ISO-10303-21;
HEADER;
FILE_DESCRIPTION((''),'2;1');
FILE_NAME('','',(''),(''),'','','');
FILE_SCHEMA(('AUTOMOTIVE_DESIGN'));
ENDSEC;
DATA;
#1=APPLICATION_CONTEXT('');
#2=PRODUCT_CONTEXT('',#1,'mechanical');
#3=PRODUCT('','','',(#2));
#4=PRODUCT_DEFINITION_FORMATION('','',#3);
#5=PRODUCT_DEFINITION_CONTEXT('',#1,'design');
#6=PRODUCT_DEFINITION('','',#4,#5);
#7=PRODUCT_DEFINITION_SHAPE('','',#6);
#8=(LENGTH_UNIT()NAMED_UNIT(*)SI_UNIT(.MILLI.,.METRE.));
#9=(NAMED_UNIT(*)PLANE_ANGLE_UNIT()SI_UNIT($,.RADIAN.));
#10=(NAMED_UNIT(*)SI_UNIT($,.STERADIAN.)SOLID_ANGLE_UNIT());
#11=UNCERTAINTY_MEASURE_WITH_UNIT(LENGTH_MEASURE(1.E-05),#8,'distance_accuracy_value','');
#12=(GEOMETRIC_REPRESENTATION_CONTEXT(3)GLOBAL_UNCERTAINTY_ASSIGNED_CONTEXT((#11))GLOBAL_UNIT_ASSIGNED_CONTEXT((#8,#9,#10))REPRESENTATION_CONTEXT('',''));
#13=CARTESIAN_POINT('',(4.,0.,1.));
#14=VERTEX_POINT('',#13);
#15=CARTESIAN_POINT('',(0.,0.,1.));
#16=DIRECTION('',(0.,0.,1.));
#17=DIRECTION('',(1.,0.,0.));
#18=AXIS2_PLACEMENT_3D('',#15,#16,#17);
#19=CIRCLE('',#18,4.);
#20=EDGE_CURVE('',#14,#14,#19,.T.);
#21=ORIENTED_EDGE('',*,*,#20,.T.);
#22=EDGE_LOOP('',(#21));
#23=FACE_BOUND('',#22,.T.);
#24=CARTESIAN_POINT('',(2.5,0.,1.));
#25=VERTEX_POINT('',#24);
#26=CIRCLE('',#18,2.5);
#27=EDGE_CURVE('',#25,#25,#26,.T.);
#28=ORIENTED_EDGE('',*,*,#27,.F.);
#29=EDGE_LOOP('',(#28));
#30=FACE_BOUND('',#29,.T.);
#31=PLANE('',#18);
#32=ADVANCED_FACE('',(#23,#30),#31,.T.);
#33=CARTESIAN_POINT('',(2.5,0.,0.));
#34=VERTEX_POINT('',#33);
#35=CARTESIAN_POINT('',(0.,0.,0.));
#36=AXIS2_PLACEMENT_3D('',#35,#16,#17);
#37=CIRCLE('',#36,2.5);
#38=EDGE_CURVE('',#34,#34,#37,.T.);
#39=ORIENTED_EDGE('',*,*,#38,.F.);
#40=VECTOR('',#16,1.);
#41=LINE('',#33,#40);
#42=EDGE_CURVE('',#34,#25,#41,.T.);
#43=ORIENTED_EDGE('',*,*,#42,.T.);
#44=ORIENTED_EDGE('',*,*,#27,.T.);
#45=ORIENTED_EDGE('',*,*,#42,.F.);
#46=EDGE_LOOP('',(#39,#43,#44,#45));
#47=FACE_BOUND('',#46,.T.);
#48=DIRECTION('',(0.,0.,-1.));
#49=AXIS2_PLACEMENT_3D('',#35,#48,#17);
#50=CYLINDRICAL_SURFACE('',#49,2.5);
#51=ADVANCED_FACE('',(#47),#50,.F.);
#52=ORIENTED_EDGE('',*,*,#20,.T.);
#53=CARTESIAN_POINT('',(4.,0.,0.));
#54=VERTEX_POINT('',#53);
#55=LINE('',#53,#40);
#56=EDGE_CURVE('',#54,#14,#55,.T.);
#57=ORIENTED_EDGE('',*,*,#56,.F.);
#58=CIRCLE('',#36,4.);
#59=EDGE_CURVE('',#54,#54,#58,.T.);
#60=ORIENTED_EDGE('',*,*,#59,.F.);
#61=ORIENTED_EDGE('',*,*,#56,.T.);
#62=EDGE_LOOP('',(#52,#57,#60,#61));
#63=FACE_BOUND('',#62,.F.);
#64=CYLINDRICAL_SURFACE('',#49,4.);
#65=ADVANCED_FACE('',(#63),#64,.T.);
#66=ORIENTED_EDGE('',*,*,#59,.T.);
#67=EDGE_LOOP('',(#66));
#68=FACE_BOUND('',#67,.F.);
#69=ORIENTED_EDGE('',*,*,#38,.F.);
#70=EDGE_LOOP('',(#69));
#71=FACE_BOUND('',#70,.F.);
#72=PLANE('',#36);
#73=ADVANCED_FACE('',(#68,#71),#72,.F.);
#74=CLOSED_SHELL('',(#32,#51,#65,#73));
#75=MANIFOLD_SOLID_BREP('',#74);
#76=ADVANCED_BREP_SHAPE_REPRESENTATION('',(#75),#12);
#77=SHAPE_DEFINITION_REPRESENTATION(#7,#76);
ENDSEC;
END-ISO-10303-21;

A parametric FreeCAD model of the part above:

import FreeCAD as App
import Part
import Sketcher
from FreeCAD import Vector

doc = App.newDocument("Part")
body = doc.addObject("PartDesign::Body", "Body")

# Sketch on XY plane
sketch1 = doc.addObject("Sketcher::SketchObject", "Sketch")
body.addObject(sketch1)
sketch1.AttachmentSupport = (doc.XY_Plane, [""])
sketch1.MapMode = "FlatFace"
sketch1.addGeometry([
    Part.Circle(Vector(0, 0, 0), Vector(0, 0, 1), 4),
    Part.Circle(Vector(0, 0, 0), Vector(0, 0, 1), 2.5),
], False)
sketch1.addConstraint([
    Sketcher.Constraint("Coincident", 0, 3, -1, 1),
    Sketcher.Constraint("Coincident", 1, 3, -1, 1),
    Sketcher.Constraint("Diameter", 0, 8.0),
    Sketcher.Constraint("Diameter", 1, 5.0),
])
pad1 = doc.addObject("PartDesign::Pad", "Pad")
body.addObject(pad1)
pad1.Profile = sketch1
pad1.Length = 1

doc.recompute()
